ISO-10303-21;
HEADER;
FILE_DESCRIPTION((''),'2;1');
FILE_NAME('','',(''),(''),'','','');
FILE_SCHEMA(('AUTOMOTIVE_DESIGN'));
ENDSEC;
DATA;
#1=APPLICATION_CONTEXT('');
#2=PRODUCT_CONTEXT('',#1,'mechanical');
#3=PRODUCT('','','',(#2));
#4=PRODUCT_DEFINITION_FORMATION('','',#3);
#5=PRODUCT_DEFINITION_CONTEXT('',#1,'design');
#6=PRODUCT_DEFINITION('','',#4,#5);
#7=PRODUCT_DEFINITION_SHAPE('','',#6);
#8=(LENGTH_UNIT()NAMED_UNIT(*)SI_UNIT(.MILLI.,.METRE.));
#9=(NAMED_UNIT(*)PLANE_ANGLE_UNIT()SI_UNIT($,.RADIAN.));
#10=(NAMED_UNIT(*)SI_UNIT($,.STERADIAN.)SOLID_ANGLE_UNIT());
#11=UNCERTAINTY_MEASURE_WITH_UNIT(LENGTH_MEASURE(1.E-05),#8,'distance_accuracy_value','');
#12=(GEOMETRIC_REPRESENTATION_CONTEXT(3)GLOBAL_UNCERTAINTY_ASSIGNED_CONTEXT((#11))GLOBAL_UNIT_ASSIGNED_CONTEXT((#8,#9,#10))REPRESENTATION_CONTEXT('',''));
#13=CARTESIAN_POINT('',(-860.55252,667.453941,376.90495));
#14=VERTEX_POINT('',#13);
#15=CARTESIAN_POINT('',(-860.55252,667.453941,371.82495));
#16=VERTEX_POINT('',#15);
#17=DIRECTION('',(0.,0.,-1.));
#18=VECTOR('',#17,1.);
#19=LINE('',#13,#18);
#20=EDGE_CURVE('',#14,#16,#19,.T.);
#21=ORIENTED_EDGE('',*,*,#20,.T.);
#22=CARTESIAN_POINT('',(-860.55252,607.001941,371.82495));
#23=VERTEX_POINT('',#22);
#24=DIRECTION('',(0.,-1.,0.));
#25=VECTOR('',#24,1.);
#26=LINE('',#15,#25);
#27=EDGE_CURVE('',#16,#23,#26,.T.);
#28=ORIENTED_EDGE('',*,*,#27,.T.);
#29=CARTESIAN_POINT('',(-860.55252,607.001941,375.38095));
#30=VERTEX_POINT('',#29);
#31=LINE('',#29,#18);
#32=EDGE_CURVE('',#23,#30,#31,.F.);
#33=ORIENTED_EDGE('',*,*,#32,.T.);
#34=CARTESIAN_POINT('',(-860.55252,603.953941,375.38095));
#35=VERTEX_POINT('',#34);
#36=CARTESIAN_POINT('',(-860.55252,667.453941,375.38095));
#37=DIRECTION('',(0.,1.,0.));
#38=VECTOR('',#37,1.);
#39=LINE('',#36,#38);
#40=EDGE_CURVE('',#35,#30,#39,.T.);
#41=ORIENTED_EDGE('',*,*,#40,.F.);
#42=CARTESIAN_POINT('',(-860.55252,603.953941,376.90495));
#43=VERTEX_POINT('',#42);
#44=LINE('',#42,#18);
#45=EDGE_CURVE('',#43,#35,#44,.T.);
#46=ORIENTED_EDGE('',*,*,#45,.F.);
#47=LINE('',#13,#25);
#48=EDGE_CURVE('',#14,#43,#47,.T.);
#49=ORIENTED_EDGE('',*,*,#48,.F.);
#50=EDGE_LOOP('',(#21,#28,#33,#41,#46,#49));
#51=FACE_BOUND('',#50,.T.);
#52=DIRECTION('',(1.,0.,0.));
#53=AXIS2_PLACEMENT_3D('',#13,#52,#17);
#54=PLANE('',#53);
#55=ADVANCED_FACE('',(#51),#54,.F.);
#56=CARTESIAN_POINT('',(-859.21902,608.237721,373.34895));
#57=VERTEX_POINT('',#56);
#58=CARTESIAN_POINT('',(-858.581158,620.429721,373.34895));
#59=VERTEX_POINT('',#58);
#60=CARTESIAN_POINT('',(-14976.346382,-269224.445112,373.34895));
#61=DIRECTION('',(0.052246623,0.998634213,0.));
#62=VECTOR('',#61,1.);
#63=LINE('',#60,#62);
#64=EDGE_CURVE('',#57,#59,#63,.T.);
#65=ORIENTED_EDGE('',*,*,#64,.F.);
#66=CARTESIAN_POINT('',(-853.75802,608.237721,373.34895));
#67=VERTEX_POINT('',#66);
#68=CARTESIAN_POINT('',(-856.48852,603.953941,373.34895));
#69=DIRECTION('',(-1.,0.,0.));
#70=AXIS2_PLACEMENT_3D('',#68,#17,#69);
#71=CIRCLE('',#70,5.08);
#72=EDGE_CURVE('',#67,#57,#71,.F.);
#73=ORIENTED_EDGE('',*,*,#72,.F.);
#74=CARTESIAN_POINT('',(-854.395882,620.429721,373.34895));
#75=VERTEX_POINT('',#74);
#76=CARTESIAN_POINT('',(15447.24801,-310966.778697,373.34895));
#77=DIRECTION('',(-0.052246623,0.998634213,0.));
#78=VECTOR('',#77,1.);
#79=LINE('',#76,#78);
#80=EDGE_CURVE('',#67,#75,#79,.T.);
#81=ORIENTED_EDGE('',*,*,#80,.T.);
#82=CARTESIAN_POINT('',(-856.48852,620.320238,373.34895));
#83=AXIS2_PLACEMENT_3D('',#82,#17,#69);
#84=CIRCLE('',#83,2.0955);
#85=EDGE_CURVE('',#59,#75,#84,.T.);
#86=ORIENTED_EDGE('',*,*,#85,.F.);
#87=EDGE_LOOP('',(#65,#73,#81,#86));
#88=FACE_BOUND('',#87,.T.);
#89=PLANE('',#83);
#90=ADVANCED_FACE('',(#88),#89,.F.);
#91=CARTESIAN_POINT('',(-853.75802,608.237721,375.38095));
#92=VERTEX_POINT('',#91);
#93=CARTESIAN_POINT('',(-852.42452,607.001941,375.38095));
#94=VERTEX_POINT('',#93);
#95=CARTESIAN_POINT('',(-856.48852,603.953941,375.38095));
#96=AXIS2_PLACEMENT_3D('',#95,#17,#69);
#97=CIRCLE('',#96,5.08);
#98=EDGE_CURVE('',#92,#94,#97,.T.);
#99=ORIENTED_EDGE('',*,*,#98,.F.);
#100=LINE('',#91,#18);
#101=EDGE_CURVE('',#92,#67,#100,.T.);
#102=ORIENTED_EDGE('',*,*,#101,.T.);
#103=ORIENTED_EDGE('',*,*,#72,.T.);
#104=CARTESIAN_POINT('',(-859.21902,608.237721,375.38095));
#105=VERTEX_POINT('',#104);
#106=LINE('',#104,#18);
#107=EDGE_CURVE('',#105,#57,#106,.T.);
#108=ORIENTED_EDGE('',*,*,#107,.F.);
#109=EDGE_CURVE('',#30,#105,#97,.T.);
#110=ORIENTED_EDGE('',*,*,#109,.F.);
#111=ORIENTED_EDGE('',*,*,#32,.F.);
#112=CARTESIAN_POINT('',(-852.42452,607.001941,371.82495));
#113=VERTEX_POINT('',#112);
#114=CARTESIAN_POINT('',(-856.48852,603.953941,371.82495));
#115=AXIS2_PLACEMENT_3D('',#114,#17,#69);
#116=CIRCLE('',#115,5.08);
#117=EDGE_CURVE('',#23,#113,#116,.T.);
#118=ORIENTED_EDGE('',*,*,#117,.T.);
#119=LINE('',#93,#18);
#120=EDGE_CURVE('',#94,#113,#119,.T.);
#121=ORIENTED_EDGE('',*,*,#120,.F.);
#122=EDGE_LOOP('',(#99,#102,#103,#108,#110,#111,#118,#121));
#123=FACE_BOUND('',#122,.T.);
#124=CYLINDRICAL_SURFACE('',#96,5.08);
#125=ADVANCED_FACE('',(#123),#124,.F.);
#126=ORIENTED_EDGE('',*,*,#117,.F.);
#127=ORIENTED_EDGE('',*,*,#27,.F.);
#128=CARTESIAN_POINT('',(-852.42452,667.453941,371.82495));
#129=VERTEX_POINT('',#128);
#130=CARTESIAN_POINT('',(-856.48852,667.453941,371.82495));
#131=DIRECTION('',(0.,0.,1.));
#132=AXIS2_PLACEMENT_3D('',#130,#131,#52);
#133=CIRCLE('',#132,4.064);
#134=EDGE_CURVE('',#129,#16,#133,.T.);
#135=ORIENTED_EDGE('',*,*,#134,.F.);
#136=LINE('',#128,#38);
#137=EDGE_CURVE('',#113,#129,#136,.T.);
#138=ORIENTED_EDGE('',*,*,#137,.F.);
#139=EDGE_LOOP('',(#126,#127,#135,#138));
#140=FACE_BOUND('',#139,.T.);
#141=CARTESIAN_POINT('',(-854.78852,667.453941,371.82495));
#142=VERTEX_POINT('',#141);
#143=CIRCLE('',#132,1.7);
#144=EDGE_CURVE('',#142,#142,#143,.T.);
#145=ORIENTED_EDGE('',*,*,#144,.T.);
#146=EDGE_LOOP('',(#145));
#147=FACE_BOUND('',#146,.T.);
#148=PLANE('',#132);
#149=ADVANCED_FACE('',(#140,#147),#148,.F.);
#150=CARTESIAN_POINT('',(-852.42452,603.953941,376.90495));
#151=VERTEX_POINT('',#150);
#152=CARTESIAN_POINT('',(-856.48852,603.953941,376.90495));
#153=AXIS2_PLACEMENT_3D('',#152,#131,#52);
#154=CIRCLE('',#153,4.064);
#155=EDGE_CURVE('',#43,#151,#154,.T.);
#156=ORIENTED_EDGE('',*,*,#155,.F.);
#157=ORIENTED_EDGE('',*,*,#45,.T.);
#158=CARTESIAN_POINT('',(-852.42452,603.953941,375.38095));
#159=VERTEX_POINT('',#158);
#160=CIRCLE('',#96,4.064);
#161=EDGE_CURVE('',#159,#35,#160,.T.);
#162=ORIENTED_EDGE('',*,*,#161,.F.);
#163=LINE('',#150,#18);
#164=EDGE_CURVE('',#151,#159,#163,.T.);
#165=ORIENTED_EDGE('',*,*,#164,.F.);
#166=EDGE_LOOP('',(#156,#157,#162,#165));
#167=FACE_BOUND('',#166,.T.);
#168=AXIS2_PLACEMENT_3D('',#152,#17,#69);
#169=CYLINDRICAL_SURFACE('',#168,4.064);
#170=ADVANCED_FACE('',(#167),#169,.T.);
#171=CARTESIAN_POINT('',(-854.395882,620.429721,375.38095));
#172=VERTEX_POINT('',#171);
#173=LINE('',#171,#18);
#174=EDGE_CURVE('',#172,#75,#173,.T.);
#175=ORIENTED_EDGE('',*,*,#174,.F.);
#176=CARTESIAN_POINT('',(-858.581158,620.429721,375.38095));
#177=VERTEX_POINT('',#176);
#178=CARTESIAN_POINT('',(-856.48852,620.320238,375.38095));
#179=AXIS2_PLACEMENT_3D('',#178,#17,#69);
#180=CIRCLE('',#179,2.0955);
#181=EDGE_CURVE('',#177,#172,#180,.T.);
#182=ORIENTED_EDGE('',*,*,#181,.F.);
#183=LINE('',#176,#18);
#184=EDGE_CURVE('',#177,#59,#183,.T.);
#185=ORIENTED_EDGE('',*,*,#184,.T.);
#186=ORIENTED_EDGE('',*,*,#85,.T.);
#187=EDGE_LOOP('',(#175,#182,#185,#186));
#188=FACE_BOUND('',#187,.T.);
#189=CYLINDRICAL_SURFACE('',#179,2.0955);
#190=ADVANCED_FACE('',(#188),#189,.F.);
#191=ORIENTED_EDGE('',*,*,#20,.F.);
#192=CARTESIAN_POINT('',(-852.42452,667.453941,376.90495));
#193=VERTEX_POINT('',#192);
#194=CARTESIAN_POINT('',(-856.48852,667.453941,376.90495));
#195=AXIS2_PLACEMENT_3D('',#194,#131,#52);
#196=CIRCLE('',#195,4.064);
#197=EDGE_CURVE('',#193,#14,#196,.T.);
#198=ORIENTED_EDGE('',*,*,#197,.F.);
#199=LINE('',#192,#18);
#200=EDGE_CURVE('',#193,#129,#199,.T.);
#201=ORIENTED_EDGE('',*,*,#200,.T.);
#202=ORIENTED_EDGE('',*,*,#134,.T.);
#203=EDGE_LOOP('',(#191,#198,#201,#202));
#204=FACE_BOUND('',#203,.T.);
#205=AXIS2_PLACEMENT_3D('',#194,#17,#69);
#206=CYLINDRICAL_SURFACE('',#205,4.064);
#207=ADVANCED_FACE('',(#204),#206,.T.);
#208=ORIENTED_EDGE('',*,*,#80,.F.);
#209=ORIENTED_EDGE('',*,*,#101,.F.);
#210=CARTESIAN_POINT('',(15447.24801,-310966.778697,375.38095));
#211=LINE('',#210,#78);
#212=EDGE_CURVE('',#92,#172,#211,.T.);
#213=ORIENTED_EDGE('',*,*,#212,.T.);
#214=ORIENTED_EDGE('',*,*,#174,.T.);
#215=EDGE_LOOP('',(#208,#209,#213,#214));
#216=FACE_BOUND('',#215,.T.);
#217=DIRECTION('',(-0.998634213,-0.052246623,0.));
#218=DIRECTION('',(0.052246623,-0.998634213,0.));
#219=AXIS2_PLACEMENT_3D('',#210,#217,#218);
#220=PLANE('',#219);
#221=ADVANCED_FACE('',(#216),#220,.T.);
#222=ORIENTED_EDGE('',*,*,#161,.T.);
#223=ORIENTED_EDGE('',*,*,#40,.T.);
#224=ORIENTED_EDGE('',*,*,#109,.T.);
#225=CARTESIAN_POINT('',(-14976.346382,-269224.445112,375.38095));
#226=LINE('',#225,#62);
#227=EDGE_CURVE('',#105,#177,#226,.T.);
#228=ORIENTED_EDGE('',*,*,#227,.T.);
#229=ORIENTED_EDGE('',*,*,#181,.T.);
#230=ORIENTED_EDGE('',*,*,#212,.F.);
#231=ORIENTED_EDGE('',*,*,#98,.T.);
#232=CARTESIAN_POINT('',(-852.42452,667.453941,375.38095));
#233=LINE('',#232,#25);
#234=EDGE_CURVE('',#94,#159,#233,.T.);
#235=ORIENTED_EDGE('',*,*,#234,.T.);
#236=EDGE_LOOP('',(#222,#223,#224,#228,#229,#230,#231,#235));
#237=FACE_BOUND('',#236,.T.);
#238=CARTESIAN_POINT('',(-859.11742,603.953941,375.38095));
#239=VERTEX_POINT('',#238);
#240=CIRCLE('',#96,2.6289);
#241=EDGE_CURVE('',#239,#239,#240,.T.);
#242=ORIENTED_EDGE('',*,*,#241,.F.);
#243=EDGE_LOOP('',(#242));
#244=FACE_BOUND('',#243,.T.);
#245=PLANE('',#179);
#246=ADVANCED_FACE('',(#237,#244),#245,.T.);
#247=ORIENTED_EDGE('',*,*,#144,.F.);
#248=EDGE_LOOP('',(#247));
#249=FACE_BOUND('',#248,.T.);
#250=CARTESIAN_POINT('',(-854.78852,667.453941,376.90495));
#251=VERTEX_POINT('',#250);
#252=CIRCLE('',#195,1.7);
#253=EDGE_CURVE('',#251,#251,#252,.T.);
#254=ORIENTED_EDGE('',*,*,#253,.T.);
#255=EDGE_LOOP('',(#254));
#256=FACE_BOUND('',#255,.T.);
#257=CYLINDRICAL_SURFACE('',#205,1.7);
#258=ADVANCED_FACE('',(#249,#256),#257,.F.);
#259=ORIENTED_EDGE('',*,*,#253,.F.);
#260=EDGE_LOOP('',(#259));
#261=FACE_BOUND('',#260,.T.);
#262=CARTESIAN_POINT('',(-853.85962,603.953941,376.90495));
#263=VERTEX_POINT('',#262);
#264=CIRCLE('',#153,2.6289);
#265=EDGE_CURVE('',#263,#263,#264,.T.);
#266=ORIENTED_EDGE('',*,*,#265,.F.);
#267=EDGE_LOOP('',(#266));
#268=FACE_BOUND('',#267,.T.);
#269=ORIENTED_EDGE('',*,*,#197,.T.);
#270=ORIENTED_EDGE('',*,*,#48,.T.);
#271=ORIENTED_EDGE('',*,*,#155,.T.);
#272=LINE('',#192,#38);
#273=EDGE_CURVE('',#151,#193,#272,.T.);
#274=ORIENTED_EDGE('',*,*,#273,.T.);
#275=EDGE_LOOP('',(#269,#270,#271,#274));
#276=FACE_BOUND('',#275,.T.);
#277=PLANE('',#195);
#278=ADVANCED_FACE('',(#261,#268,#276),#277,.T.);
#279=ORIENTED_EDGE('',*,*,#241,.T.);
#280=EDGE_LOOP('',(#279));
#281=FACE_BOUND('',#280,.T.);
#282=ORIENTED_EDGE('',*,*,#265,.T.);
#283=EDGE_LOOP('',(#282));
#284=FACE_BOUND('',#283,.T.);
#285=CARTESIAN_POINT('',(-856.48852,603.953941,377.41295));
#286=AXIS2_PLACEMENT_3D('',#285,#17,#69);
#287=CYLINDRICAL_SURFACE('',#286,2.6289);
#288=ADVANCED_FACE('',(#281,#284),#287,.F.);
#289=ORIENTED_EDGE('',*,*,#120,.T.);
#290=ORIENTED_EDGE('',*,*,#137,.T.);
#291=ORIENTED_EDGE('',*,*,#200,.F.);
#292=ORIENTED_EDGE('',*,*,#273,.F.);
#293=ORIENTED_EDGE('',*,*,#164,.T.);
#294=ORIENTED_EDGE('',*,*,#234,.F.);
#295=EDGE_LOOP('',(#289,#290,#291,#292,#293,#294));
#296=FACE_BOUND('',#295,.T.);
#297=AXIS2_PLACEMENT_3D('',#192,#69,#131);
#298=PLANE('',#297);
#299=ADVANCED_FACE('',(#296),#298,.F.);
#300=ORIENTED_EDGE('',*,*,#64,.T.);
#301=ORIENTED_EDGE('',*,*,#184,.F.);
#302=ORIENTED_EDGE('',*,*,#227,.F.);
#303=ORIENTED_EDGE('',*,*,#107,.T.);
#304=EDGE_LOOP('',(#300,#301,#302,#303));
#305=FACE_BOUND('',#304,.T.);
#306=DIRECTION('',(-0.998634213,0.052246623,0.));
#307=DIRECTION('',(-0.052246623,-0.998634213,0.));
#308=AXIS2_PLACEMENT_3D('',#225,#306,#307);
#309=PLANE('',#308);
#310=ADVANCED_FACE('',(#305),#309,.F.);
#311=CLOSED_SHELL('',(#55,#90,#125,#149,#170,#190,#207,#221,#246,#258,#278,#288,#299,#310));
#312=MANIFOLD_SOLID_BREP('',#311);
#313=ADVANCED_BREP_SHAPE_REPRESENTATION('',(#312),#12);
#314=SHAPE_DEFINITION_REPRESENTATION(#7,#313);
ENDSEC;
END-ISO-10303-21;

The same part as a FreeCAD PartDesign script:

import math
import FreeCAD as App
import Part
import Sketcher

V = App.Vector
Q = App.Units.Quantity

doc = App.newDocument("Part")
body = doc.addObject("PartDesign::Body", "Body")

sketch1 = body.newObject("Sketcher::SketchObject", "Sketch")
sketch1.AttachmentSupport = (doc.getObject("XY_Plane"), [""])
sketch1.MapMode = "FlatFace"
sketch1.AttachmentOffset = App.Placement(V(0, 0, 371.82495), App.Rotation())
sketch1.addGeometry([
    Part.LineSegment(V(-852.4, 604, 0), V(-852.4, 667.5, 0)),
    Part.ArcOfCircle(Part.Circle(V(-856.5, 667.5, 0), V(0, 0, 1), 4.1), math.radians(0), math.radians(180)),
    Part.LineSegment(V(-860.6, 667.5, 0), V(-860.6, 604, 0)),
    Part.ArcOfCircle(Part.Circle(V(-856.5, 604, 0), V(0, 0, 1), 4.1), math.radians(180), math.radians(360)),
    Part.Circle(V(-856.5, 604, 0), V(0, 0, 1), 1.7),
    Part.Circle(V(-856.5, 667.5, 0), V(0, 0, 1), 1.7),
], False)
sketch1.addConstraint([
    Sketcher.Constraint("Tangent", 0, 2, 1, 1),
    Sketcher.Constraint("Tangent", 1, 2, 2, 1),
    Sketcher.Constraint("Tangent", 2, 2, 3, 1),
    Sketcher.Constraint("Tangent", 3, 2, 0, 1),
    Sketcher.Constraint("Vertical", 0),
    Sketcher.Constraint("Vertical", 2),
    Sketcher.Constraint("Coincident", 4, 3, 3, 3),
    Sketcher.Constraint("Coincident", 5, 3, 1, 3),
    Sketcher.Constraint("Equal", 4, 5),
    Sketcher.Constraint("Radius", 1, Q("0.16 in")),
    Sketcher.Constraint("DistanceY", 0, 1, 0, 2, Q("2.5 in")),
    Sketcher.Constraint("Diameter", 4, 3.4),
    Sketcher.Constraint("DistanceX", 1, 3, -1, 1, 856.48852),
    Sketcher.Constraint("DistanceY", -1, 1, 1, 3, 667.453941),
])
pad1 = body.newObject("PartDesign::Pad", "Pad")
pad1.Profile = sketch1
pad1.Length = Q("0.2 in")

sketch2 = body.newObject("Sketcher::SketchObject", "Sketch001")
sketch2.AttachmentSupport = (doc.getObject("XY_Plane"), [""])
sketch2.MapMode = "FlatFace"
sketch2.AttachmentOffset = App.Placement(V(0, 0, 374.36495), App.Rotation())
sketch2.addGeometry([
    Part.LineSegment(V(-859.2, 608.2, 0), V(-858.6, 620.4, 0)),
    Part.ArcOfCircle(Part.Circle(V(-856.5, 620.3, 0), V(0, 0, 1), 2.1), math.radians(3), math.radians(177)),
    Part.LineSegment(V(-854.4, 620.4, 0), V(-853.8, 608.2, 0)),
    Part.ArcOfCircle(Part.Circle(V(-856.5, 604, 0), V(0, 0, 1), 5.1), math.radians(123), math.radians(417)),
], False)
sketch2.addConstraint([
    Sketcher.Constraint("Tangent", 0, 2, 1, 2),
    Sketcher.Constraint("Tangent", 1, 1, 2, 1),
    Sketcher.Constraint("Coincident", 2, 2, 3, 2),
    Sketcher.Constraint("Coincident", 3, 1, 0, 1),
    Sketcher.Constraint("Horizontal", 0, 2, 1, 1),
    Sketcher.Constraint("Horizontal", 2, 2, 3, 1),
    Sketcher.Constraint("Radius", 3, Q("0.2 in")),
    Sketcher.Constraint("Radius", 1, Q("0.0825 in")),
    Sketcher.Constraint("DistanceY", 2, 2, 1, 1, Q("0.48 in")),
    Sketcher.Constraint("DistanceX", 3, 1, 2, 2, Q("0.215 in")),
    Sketcher.Constraint("DistanceX", 1, 3, -1, 1, 856.48852),
    Sketcher.Constraint("DistanceY", -1, 1, 1, 3, 620.320238),
])
pocket1 = body.newObject("PartDesign::Pocket", "Pocket")
pocket1.Profile = sketch2
pocket1.Length = Q("0.08 in")
pocket1.Midplane = True

sketch3 = body.newObject("Sketcher::SketchObject", "Sketch002")
sketch3.AttachmentSupport = (doc.getObject("XY_Plane"), [""])
sketch3.MapMode = "FlatFace"
sketch3.AttachmentOffset = App.Placement(V(0, 0, 375.38095), App.Rotation())
sketch3.addGeometry(Part.Circle(V(-856.5, 604, 0), V(0, 0, 1), 2.6), False)
sketch3.addConstraint([
    Sketcher.Constraint("Diameter", 0, Q("0.207 in")),
    Sketcher.Constraint("DistanceX", 0, 3, -1, 1, 856.48852),
    Sketcher.Constraint("DistanceY", -1, 1, 0, 3, 603.953941),
])
pocket2 = body.newObject("PartDesign::Pocket", "Pocket001")
pocket2.Profile = sketch3
pocket2.Length = Q("0.08 in")
pocket2.Reversed = True

sketch4 = body.newObject("Sketcher::SketchObject", "Sketch003")
sketch4.AttachmentSupport = (doc.getObject("XY_Plane"), [""])
sketch4.MapMode = "FlatFace"
sketch4.AttachmentOffset = App.Placement(V(0, 0, 371.82495), App.Rotation())
sketch4.addGeometry([
    Part.ArcOfCircle(Part.Circle(V(-856.5, 604, 0), V(0, 0, 1), 5.1), math.radians(123), math.radians(143)),
    Part.ArcOfCircle(Part.Circle(V(-856.5, 604, 0), V(0, 0, 1), 5.1), math.radians(57), math.radians(123)),
    Part.ArcOfCircle(Part.Circle(V(-856.5, 604, 0), V(0, 0, 1), 5.1), math.radians(37), math.radians(57)),
    Part.LineSegment(V(-852.4, 607, 0), V(-852.4, 604, 0)),
    Part.ArcOfCircle(Part.Circle(V(-856.5, 604, 0), V(0, 0, 1), 4.1), math.radians(180), math.radians(360)),
    Part.LineSegment(V(-860.6, 604, 0), V(-860.6, 607, 0)),
    Part.Circle(V(-856.5, 604, 0), V(0, 0, 1), 1.7),
], False)
sketch4.addConstraint([
    Sketcher.Constraint("Tangent", 0, 1, 1, 2),
    Sketcher.Constraint("Tangent", 1, 1, 2, 2),
    Sketcher.Constraint("Coincident", 2, 1, 3, 1),
    Sketcher.Constraint("Tangent", 3, 2, 4, 2),
    Sketcher.Constraint("Tangent", 4, 1, 5, 1),
    Sketcher.Constraint("Coincident", 5, 2, 0, 2),
    Sketcher.Constraint("Vertical", 3),
    Sketcher.Constraint("Vertical", 5),
    Sketcher.Constraint("Coincident", 2, 3, 0, 3),
    Sketcher.Constraint("Coincident", 4, 3, 0, 3),
    Sketcher.Constraint("Coincident", 6, 3, 0, 3),
    Sketcher.Constraint("Horizontal", 0, 1, 1, 1),
    Sketcher.Constraint("Radius", 0, Q("0.2 in")),
    Sketcher.Constraint("Radius", 4, Q("0.16 in")),
    Sketcher.Constraint("Diameter", 6, 3.4),
    Sketcher.Constraint("DistanceX", 0, 1, 4, 3, Q("0.1075 in")),
    Sketcher.Constraint("DistanceX", 0, 3, -1, 1, 856.48852),
    Sketcher.Constraint("DistanceY", -1, 1, 0, 3, 603.953941),
])
pocket3 = body.newObject("PartDesign::Pocket", "Pocket002")
pocket3.Profile = sketch4
pocket3.Length = Q("0.06 in")
pocket3.Reversed = True

doc.recompute()
